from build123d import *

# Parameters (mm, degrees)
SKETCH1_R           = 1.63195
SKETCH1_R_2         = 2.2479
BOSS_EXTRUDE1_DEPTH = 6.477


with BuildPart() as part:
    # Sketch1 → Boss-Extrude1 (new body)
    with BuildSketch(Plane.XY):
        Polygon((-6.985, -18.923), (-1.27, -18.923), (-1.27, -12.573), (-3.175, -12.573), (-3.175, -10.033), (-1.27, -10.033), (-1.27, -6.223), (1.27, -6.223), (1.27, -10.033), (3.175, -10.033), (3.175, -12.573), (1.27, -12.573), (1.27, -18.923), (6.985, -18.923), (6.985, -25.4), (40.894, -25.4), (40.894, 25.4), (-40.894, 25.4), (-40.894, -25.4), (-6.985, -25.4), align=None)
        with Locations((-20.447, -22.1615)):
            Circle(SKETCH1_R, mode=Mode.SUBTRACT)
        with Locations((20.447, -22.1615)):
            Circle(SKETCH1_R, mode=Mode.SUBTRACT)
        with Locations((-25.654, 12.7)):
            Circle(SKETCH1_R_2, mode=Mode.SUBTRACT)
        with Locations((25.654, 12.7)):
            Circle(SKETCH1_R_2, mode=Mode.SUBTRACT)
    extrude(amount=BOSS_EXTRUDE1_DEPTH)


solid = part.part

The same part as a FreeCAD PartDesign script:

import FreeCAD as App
import Part
import Sketcher

V = App.Vector
Q = App.Units.Quantity

doc = App.newDocument("Part")
body = doc.addObject("PartDesign::Body", "Body")

# Sketch on XY plane
sketch1 = doc.addObject("Sketcher::SketchObject", "Sketch")
body.addObject(sketch1)
sketch1.AttachmentSupport = (doc.XY_Plane, [""])
sketch1.MapMode = "FlatFace"
sketch1.addGeometry(Part.LineSegment(V(-7, -18.9, 0), V(-1.3, -18.9, 0)), False)
sketch1.addGeometry(Part.LineSegment(V(-1.3, -18.9, 0), V(-1.3, -12.6, 0)), False)
sketch1.addGeometry(Part.LineSegment(V(-1.3, -12.6, 0), V(-3.2, -12.6, 0)), False)
sketch1.addGeometry(Part.LineSegment(V(-3.2, -12.6, 0), V(-3.2, -10, 0)), False)
sketch1.addGeometry(Part.LineSegment(V(-3.2, -10, 0), V(-1.3, -10, 0)), False)
sketch1.addGeometry(Part.LineSegment(V(-1.3, -10, 0), V(-1.3, -6.2, 0)), False)
sketch1.addGeometry(Part.LineSegment(V(-1.3, -6.2, 0), V(1.3, -6.2, 0)), False)
sketch1.addGeometry(Part.LineSegment(V(1.3, -6.2, 0), V(1.3, -10, 0)), False)
sketch1.addGeometry(Part.LineSegment(V(1.3, -10, 0), V(3.2, -10, 0)), False)
sketch1.addGeometry(Part.LineSegment(V(3.2, -10, 0), V(3.2, -12.6, 0)), False)
sketch1.addGeometry(Part.LineSegment(V(3.2, -12.6, 0), V(1.3, -12.6, 0)), False)
sketch1.addGeometry(Part.LineSegment(V(1.3, -12.6, 0), V(1.3, -18.9, 0)), False)
sketch1.addGeometry(Part.LineSegment(V(1.3, -18.9, 0), V(7, -18.9, 0)), False)
sketch1.addGeometry(Part.LineSegment(V(7, -18.9, 0), V(7, -25.4, 0)), False)
sketch1.addGeometry(Part.LineSegment(V(7, -25.4, 0), V(40.9, -25.4, 0)), False)
sketch1.addGeometry(Part.LineSegment(V(40.9, -25.4, 0), V(40.9, 25.4, 0)), False)
sketch1.addGeometry(Part.LineSegment(V(40.9, 25.4, 0), V(-40.9, 25.4, 0)), False)
sketch1.addGeometry(Part.LineSegment(V(-40.9, 25.4, 0), V(-40.9, -25.4, 0)), False)
sketch1.addGeometry(Part.LineSegment(V(-40.9, -25.4, 0), V(-7, -25.4, 0)), False)
sketch1.addGeometry(Part.LineSegment(V(-7, -25.4, 0), V(-7, -18.9, 0)), False)
sketch1.addGeometry(Part.Circle(V(-20.4, -22.2, 0), V(0, 0, 1), 1.6), False)
sketch1.addGeometry(Part.Circle(V(20.4, -22.2, 0), V(0, 0, 1), 1.6), False)
sketch1.addGeometry(Part.Circle(V(-25.7, 12.7, 0), V(0, 0, 1), 2.2), False)
sketch1.addGeometry(Part.Circle(V(25.7, 12.7, 0), V(0, 0, 1), 2.2), False)
sketch1.addConstraint(Sketcher.Constraint("Coincident", 0, 2, 1, 1))
sketch1.addConstraint(Sketcher.Constraint("Coincident", 1, 2, 2, 1))
sketch1.addConstraint(Sketcher.Constraint("Coincident", 2, 2, 3, 1))
sketch1.addConstraint(Sketcher.Constraint("Coincident", 3, 2, 4, 1))
sketch1.addConstraint(Sketcher.Constraint("Coincident", 4, 2, 5, 1))
sketch1.addConstraint(Sketcher.Constraint("Coincident", 5, 2, 6, 1))
sketch1.addConstraint(Sketcher.Constraint("Coincident", 6, 2, 7, 1))
sketch1.addConstraint(Sketcher.Constraint("Coincident", 7, 2, 8, 1))
sketch1.addConstraint(Sketcher.Constraint("Coincident", 8, 2, 9, 1))
sketch1.addConstraint(Sketcher.Constraint("Coincident", 9, 2, 10, 1))
sketch1.addConstraint(Sketcher.Constraint("Coincident", 10, 2, 11, 1))
sketch1.addConstraint(Sketcher.Constraint("Coincident", 11, 2, 12, 1))
sketch1.addConstraint(Sketcher.Constraint("Coincident", 12, 2, 13, 1))
sketch1.addConstraint(Sketcher.Constraint("Coincident", 13, 2, 14, 1))
sketch1.addConstraint(Sketcher.Constraint("Coincident", 14, 2, 15, 1))
sketch1.addConstraint(Sketcher.Constraint("Coincident", 15, 2, 16, 1))
sketch1.addConstraint(Sketcher.Constraint("Coincident", 16, 2, 17, 1))
sketch1.addConstraint(Sketcher.Constraint("Coincident", 17, 2, 18, 1))
sketch1.addConstraint(Sketcher.Constraint("Coincident", 18, 2, 19, 1))
sketch1.addConstraint(Sketcher.Constraint("Coincident", 19, 2, 0, 1))
sketch1.addConstraint(Sketcher.Constraint("Horizontal", 0))
sketch1.addConstraint(Sketcher.Constraint("Vertical", 1))
sketch1.addConstraint(Sketcher.Constraint("Horizontal", 2))
sketch1.addConstraint(Sketcher.Constraint("Vertical", 3))
sketch1.addConstraint(Sketcher.Constraint("Horizontal", 4))
sketch1.addConstraint(Sketcher.Constraint("Vertical", 5))
sketch1.addConstraint(Sketcher.Constraint("Horizontal", 6))
sketch1.addConstraint(Sketcher.Constraint("Vertical", 7))
sketch1.addConstraint(Sketcher.Constraint("Horizontal", 8))
sketch1.addConstraint(Sketcher.Constraint("Vertical", 9))
sketch1.addConstraint(Sketcher.Constraint("Horizontal", 10))
sketch1.addConstraint(Sketcher.Constraint("Vertical", 11))
sketch1.addConstraint(Sketcher.Constraint("Horizontal", 12))
sketch1.addConstraint(Sketcher.Constraint("Vertical", 13))
sketch1.addConstraint(Sketcher.Constraint("Horizontal", 14))
sketch1.addConstraint(Sketcher.Constraint("Vertical", 15))
sketch1.addConstraint(Sketcher.Constraint("Horizontal", 16))
sketch1.addConstraint(Sketcher.Constraint("Vertical", 17))
sketch1.addConstraint(Sketcher.Constraint("Horizontal", 18))
sketch1.addConstraint(Sketcher.Constraint("Vertical", 19))
sketch1.addConstraint(Sketcher.Constraint("Equal", 20, 21))
sketch1.addConstraint(Sketcher.Constraint("Equal", 22, 23))
sketch1.addConstraint(Sketcher.Constraint("Symmetric", 14, 2, 16, 2, -1, 1))
sketch1.addConstraint(Sketcher.Constraint("Symmetric", 20, 3, 21, 3, -2))
sketch1.addConstraint(Sketcher.Constraint("Symmetric", 22, 3, 23, 3, -2))
sketch1.addConstraint(Sketcher.Constraint("Symmetric", 4, 2, 7, 2, -2))
sketch1.addConstraint(Sketcher.Constraint("Symmetric", 2, 2, 9, 2, -2))
sketch1.addConstraint(Sketcher.Constraint("Symmetric", 0, 2, 11, 2, -2))
sketch1.addConstraint(Sketcher.Constraint("Symmetric", 13, 2, 18, 2, -2))
sketch1.addConstraint(Sketcher.Constraint("Vertical", 1, 2, 4, 2))
sketch1.addConstraint(Sketcher.Constraint("Equal", 6, 3))
sketch1.addConstraint(Sketcher.Constraint("DistanceY", 15, 1, 15, 2, Q("2 in")))
sketch1.addConstraint(Sketcher.Constraint("Diameter", 22, Q("0.177 in")))
sketch1.addConstraint(Sketcher.Constraint("DistanceX", 6, 1, 6, 2, Q("0.1 in")))
sketch1.addConstraint(Sketcher.Constraint("Diameter", 20, Q("0.1285 in")))
sketch1.addConstraint(Sketcher.Constraint("DistanceX", 16, 2, 16, 1, Q("3.22 in")))
sketch1.addConstraint(Sketcher.Constraint("DistanceY", 1, 1, 1, 2, Q("0.25 in")))
sketch1.addConstraint(Sketcher.Constraint("DistanceY", 5, 1, 5, 2, Q("0.15 in")))
sketch1.addConstraint(Sketcher.Constraint("DistanceY", -1, 1, 22, 3, Q("0.5 in")))
sketch1.addConstraint(Sketcher.Constraint("DistanceX", 23, 3, 15, 2, Q("0.6 in")))
sketch1.addConstraint(Sketcher.Constraint("DistanceX", 0, 1, 0, 2, Q("0.225 in")))
sketch1.addConstraint(Sketcher.Constraint("DistanceX", 2, 2, 2, 1, Q("0.075 in")))
sketch1.addConstraint(Sketcher.Constraint("DistanceY", 13, 2, 13, 1, Q("0.255 in")))
sketch1.addConstraint(Sketcher.Constraint("DistanceX", 20, 3, 21, 3, Q("1.61 in")))
sketch1.addConstraint(Sketcher.Constraint("DistanceY", 20, 3, -1, 1, Q("0.8725 in")))
pad1 = doc.addObject("PartDesign::Pad", "Pad")
body.addObject(pad1)
pad1.Profile = sketch1
pad1.Length = Q("0.255 in")

doc.recompute()
